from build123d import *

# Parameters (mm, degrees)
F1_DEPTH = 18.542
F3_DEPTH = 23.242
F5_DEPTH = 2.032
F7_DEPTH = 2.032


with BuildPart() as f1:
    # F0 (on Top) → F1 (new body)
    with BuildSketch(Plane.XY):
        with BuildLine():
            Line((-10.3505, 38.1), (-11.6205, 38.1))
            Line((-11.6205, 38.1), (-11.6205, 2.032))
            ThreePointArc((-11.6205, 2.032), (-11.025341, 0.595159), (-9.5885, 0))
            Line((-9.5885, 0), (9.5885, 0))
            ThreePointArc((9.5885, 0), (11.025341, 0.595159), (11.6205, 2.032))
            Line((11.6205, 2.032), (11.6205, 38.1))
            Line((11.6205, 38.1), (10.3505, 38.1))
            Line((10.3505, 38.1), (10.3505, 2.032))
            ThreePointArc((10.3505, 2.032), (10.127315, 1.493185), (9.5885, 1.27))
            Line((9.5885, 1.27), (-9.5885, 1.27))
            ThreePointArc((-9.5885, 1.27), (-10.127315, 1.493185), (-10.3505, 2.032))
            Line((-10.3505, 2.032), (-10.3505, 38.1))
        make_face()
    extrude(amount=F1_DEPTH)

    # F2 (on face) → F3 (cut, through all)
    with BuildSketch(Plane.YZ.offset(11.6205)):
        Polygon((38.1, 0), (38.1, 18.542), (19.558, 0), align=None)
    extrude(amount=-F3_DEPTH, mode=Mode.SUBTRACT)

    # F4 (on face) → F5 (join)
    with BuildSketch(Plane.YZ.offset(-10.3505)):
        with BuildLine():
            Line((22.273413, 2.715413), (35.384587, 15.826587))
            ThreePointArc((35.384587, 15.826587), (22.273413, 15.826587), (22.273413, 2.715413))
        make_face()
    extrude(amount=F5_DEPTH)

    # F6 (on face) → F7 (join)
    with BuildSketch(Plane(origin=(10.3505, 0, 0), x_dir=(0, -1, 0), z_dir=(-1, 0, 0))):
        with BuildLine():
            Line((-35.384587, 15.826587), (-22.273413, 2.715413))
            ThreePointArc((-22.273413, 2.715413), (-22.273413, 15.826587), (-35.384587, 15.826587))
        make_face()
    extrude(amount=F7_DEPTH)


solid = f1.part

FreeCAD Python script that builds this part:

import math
import FreeCAD as App
import Part
import Sketcher
from FreeCAD import Vector
Q = App.Units.Quantity

doc = App.newDocument("Part")
body = doc.addObject("PartDesign::Body", "Body")

sketch1 = body.newObject("Sketcher::SketchObject", "Sketch")
sketch1.AttachmentSupport = (doc.getObject("XY_Plane"), [""])
sketch1.MapMode = "FlatFace"
sketch1.addGeometry(Part.LineSegment(Vector(-10.4, 38.1, 0), Vector(-11.6, 38.1, 0)), False)
sketch1.addGeometry(Part.LineSegment(Vector(-11.6, 38.1, 0), Vector(-11.6, 2, 0)), False)
sketch1.addGeometry(Part.ArcOfCircle(Part.Circle(Vector(-9.6, 2, 0), Vector(0, 0, 1), 2), math.radians(180), math.radians(270)), False)
sketch1.addGeometry(Part.LineSegment(Vector(-9.6, 0, 0), Vector(9.6, 0, 0)), False)
sketch1.addGeometry(Part.ArcOfCircle(Part.Circle(Vector(9.6, 2, 0), Vector(0, 0, 1), 2), math.radians(-90), math.radians(0)), False)
sketch1.addGeometry(Part.LineSegment(Vector(11.6, 2, 0), Vector(11.6, 38.1, 0)), False)
sketch1.addGeometry(Part.LineSegment(Vector(11.6, 38.1, 0), Vector(10.4, 38.1, 0)), False)
sketch1.addGeometry(Part.LineSegment(Vector(10.4, 38.1, 0), Vector(10.4, 2, 0)), False)
sketch1.addGeometry(Part.ArcOfCircle(Part.Circle(Vector(9.6, 2, 0), Vector(0, 0, 1), 0.8), math.radians(-90), math.radians(0)), False)
sketch1.addGeometry(Part.LineSegment(Vector(9.6, 1.3, 0), Vector(-9.6, 1.3, 0)), False)
sketch1.addGeometry(Part.ArcOfCircle(Part.Circle(Vector(-9.6, 2, 0), Vector(0, 0, 1), 0.8), math.radians(-180), math.radians(-90)), False)
sketch1.addGeometry(Part.LineSegment(Vector(-10.4, 2, 0), Vector(-10.4, 38.1, 0)), False)
sketch1.addConstraint(Sketcher.Constraint("Coincident", 0, 2, 1, 1))
sketch1.addConstraint(Sketcher.Constraint("Tangent", 1, 2, 2, 1))
sketch1.addConstraint(Sketcher.Constraint("Tangent", 2, 2, 3, 1))
sketch1.addConstraint(Sketcher.Constraint("Tangent", 3, 2, 4, 1))
sketch1.addConstraint(Sketcher.Constraint("Tangent", 4, 2, 5, 1))
sketch1.addConstraint(Sketcher.Constraint("Coincident", 5, 2, 6, 1))
sketch1.addConstraint(Sketcher.Constraint("Coincident", 6, 2, 7, 1))
sketch1.addConstraint(Sketcher.Constraint("Tangent", 7, 2, 8, 2))
sketch1.addConstraint(Sketcher.Constraint("Tangent", 8, 1, 9, 1))
sketch1.addConstraint(Sketcher.Constraint("Tangent", 9, 2, 10, 2))
sketch1.addConstraint(Sketcher.Constraint("Tangent", 10, 1, 11, 1))
sketch1.addConstraint(Sketcher.Constraint("Coincident", 11, 2, 0, 1))
sketch1.addConstraint(Sketcher.Constraint("Horizontal", 0))
sketch1.addConstraint(Sketcher.Constraint("Vertical", 1))
sketch1.addConstraint(Sketcher.Constraint("Horizontal", 3))
sketch1.addConstraint(Sketcher.Constraint("Vertical", 5))
sketch1.addConstraint(Sketcher.Constraint("Horizontal", 6))
sketch1.addConstraint(Sketcher.Constraint("Vertical", 7))
sketch1.addConstraint(Sketcher.Constraint("Horizontal", 9))
sketch1.addConstraint(Sketcher.Constraint("Vertical", 11))
sketch1.addConstraint(Sketcher.Constraint("Coincident", 8, 3, 4, 3))
sketch1.addConstraint(Sketcher.Constraint("Coincident", 10, 3, 2, 3))
sketch1.addConstraint(Sketcher.Constraint("Equal", 2, 4))
sketch1.addConstraint(Sketcher.Constraint("Symmetric", 2, 2, 3, 2, -1, 1))
sketch1.addConstraint(Sketcher.Constraint("Horizontal", 0, 2, 5, 2))
sketch1.addConstraint(Sketcher.Constraint("Radius", 2, Q("0.08 in")))
sketch1.addConstraint(Sketcher.Constraint("Radius", 8, Q("0.03 in")))
sketch1.addConstraint(Sketcher.Constraint("DistanceY", 1, 2, 1, 1, Q("1.42 in")))
sketch1.addConstraint(Sketcher.Constraint("DistanceX", 3, 1, 3, 2, Q("0.755 in")))
pad1 = body.newObject("PartDesign::Pad", "Pad")
pad1.Profile = sketch1
pad1.Length = Q("0.73 in")

sketch2 = body.newObject("Sketcher::SketchObject", "Sketch001")
sketch2.AttachmentSupport = (doc.getObject("YZ_Plane"), [""])
sketch2.MapMode = "FlatFace"
sketch2.AttachmentOffset = App.Placement(Vector(0, 0, 0.4575 * 25.4), App.Rotation())
sketch2.addGeometry(Part.LineSegment(Vector(38, 0, 0), Vector(38, 19, 0)), False)
sketch2.addGeometry(Part.LineSegment(Vector(38, 19, 0), Vector(20, 0, 0)), False)
sketch2.addGeometry(Part.LineSegment(Vector(20, 0, 0), Vector(38, 0, 0)), False)
sketch2.addConstraint(Sketcher.Constraint("Coincident", 0, 2, 1, 1))
sketch2.addConstraint(Sketcher.Constraint("Coincident", 1, 2, 2, 1))
sketch2.addConstraint(Sketcher.Constraint("Coincident", 2, 2, 0, 1))
sketch2.addConstraint(Sketcher.Constraint("Vertical", 0))
sketch2.addConstraint(Sketcher.Constraint("Horizontal", 2))
sketch2.addConstraint(Sketcher.Constraint("PointOnObject", 1, 2, -1))
sketch2.addConstraint(Sketcher.Constraint("Equal", 2, 0))
sketch2.addConstraint(Sketcher.Constraint("DistanceX", 2, 1, 2, 2, Q("0.73 in")))
sketch2.addConstraint(Sketcher.Constraint("DistanceX", -1, 1, 0, 2, Q("1.5 in")))
pocket1 = body.newObject("PartDesign::Pocket", "Pocket")
pocket1.Profile = sketch2
pocket1.Type = "ThroughAll"

sketch3 = body.newObject("Sketcher::SketchObject", "Sketch002")
sketch3.AttachmentSupport = (doc.getObject("YZ_Plane"), [""])
sketch3.MapMode = "FlatFace"
sketch3.AttachmentOffset = App.Placement(Vector(0, 0, -0.4075 * 25.4), App.Rotation())
sketch3.addGeometry(Part.LineSegment(Vector(22, 3, 0), Vector(35, 16, 0)), False)
sketch3.addGeometry(Part.ArcOfCircle(Part.Circle(Vector(29, 9, 0), Vector(0, 0, 1), 9), math.radians(45), math.radians(225)), False)
sketch3.addConstraint(Sketcher.Constraint("Coincident", 0, 1, 1, 2))
sketch3.addConstraint(Sketcher.Constraint("Coincident", 1, 1, 0, 2))
sketch3.addConstraint(Sketcher.Constraint("Angle", 0, Q("45 deg")))
sketch3.addConstraint(Sketcher.Constraint("Radius", 1, Q("0.365 in")))
sketch3.addConstraint(Sketcher.Constraint("DistanceX", -1, 1, 1, 3, Q("1.135 in")))
sketch3.addConstraint(Sketcher.Constraint("DistanceY", -1, 1, 1, 3, Q("0.365 in")))
sketch3.addConstraint(Sketcher.Constraint("DistanceX", -1, 1, 0, 1, Q("22.273413 mm")))
pad2 = body.newObject("PartDesign::Pad", "Pad001")
pad2.Profile = sketch3
pad2.Length = Q("0.08 in")

sketch4 = body.newObject("Sketcher::SketchObject", "Sketch003")
sketch4.AttachmentSupport = (doc.getObject("YZ_Plane"), [""])
sketch4.MapMode = "FlatFace"
sketch4.AttachmentOffset = App.Placement(Vector(0, 0, 0.4075 * 25.4), App.Rotation())
sketch4.addGeometry(Part.LineSegment(Vector(35, 16, 0), Vector(22, 3, 0)), False)
sketch4.addGeometry(Part.ArcOfCircle(Part.Circle(Vector(29, 9, 0), Vector(0, 0, 1), 9), math.radians(45), math.radians(225)), False)
sketch4.addConstraint(Sketcher.Constraint("Coincident", 0, 1, 1, 1))
sketch4.addConstraint(Sketcher.Constraint("Coincident", 1, 2, 0, 2))
sketch4.addConstraint(Sketcher.Constraint("Angle", 0, Q("-135 deg")))
sketch4.addConstraint(Sketcher.Constraint("Radius", 1, Q("0.365 in")))
sketch4.addConstraint(Sketcher.Constraint("DistanceX", -1, 1, 1, 3, Q("1.135 in")))
sketch4.addConstraint(Sketcher.Constraint("DistanceY", -1, 1, 1, 3, Q("0.365 in")))
sketch4.addConstraint(Sketcher.Constraint("DistanceX", -1, 1, 0, 1, Q("35.384587 mm")))
pad3 = body.newObject("PartDesign::Pad", "Pad002")
pad3.Profile = sketch4
pad3.Length = Q("0.08 in")
pad3.Reversed = True

doc.recompute()
